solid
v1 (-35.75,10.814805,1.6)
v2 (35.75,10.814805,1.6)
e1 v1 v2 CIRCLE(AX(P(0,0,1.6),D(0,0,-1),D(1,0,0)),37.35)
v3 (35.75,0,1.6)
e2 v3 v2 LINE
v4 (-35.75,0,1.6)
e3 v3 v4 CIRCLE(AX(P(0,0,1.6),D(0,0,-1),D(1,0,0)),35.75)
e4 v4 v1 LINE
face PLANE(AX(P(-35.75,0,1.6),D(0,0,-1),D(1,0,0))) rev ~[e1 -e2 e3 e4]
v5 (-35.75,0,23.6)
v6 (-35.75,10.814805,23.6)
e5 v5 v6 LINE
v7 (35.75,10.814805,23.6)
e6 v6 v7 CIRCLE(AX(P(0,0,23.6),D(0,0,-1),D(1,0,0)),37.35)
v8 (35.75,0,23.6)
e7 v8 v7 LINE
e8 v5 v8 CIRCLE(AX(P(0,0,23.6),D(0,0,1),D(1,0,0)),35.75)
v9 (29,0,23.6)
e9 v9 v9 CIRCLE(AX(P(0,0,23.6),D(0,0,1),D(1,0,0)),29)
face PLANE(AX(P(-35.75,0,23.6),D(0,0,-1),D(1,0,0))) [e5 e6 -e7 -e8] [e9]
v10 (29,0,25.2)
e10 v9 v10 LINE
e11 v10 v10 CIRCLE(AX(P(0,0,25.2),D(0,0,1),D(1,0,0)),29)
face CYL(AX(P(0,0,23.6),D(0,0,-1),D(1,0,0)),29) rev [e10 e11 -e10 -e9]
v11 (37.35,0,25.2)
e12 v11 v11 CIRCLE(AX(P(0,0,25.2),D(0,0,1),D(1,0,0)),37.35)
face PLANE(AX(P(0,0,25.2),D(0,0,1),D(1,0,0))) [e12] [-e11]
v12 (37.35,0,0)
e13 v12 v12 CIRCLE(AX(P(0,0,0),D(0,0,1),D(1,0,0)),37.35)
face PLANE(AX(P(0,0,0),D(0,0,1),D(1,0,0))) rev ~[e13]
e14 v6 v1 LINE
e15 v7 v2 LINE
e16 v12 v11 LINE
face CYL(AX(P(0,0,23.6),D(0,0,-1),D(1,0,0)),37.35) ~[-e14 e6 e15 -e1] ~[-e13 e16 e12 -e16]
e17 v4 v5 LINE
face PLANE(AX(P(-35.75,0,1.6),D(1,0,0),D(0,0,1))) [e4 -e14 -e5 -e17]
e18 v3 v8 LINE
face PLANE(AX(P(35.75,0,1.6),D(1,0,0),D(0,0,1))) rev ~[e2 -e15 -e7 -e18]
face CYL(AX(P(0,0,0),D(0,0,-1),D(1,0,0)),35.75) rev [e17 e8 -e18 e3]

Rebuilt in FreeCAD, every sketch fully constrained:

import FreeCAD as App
import Part
import Sketcher
from FreeCAD import Vector


def faces_at(feature, points):
    """Names of the faces that lie closest to the given points."""
    faces = feature.Shape.Faces
    near = lambda p: min(range(len(faces)), key=lambda i: faces[i].distToShape(Part.Vertex(*p))[0])
    return sorted({f"Face{near(p) + 1}" for p in points})

doc = App.newDocument("Part")
body = doc.addObject("PartDesign::Body", "Body")

# Sketch on XY plane
sketch1 = doc.addObject("Sketcher::SketchObject", "Sketch")
body.addObject(sketch1)
sketch1.AttachmentSupport = (doc.XY_Plane, [""])
sketch1.MapMode = "FlatFace"
sketch1.addGeometry(Part.Circle(Vector(0, 0, 0), Vector(0, 0, 1), 37), False)
sketch1.addConstraint(Sketcher.Constraint("Coincident", 0, 3, -1, 1))
sketch1.addConstraint(Sketcher.Constraint("Diameter", 0, 74.7))
pad1 = doc.addObject("PartDesign::Pad", "Pad")
body.addObject(pad1)
pad1.Profile = sketch1
pad1.Length = 23.6
doc.recompute()

thickness = doc.addObject("PartDesign::Thickness", "Thickness")
body.addObject(thickness)
thickness.Base = (pad1, faces_at(pad1, [(0, 0, 23.6)]))
thickness.Value = 1.6
thickness.Reversed = True
thickness.Join = "Arc"

# Sketch on XY plane
sketch2 = doc.addObject("Sketcher::SketchObject", "Sketch001")
body.addObject(sketch2)
sketch2.AttachmentSupport = (doc.XY_Plane, [""])
sketch2.MapMode = "FlatFace"
sketch2.AttachmentOffset = App.Placement(Vector(0, 0, 23.6), App.Rotation())
sketch2.addGeometry(Part.Circle(Vector(0, 0, 0), Vector(0, 0, 1), 37), False)
sketch2.addGeometry(Part.Circle(Vector(0, 0, 0), Vector(0, 0, 1), 29), False)
sketch2.addConstraint(Sketcher.Constraint("Coincident", 0, 3, -1, 1))
sketch2.addConstraint(Sketcher.Constraint("Coincident", 1, 3, -1, 1))
sketch2.addConstraint(Sketcher.Constraint("Diameter", 1, 58.0))
sketch2.addConstraint(Sketcher.Constraint("Diameter", 0, 74.7))
pad2 = doc.addObject("PartDesign::Pad", "Pad001")
body.addObject(pad2)
pad2.Profile = sketch2
pad2.Length = 1.6

# Sketch on XZ plane
sketch3 = doc.addObject("Sketcher::SketchObject", "Sketch002")
body.addObject(sketch3)
sketch3.AttachmentSupport = (doc.XZ_Plane, [""])
sketch3.MapMode = "FlatFace"
sketch3.addGeometry(Part.LineSegment(Vector(-36, 24, 0), Vector(-36, 2, 0)), False)
sketch3.addGeometry(Part.LineSegment(Vector(-36, 2, 0), Vector(36, 2, 0)), False)
sketch3.addGeometry(Part.LineSegment(Vector(36, 2, 0), Vector(36, 24, 0)), False)
sketch3.addGeometry(Part.LineSegment(Vector(36, 24, 0), Vector(-36, 24, 0)), False)
sketch3.addConstraint(Sketcher.Constraint("Coincident", 0, 2, 1, 1))
sketch3.addConstraint(Sketcher.Constraint("Coincident", 1, 2, 2, 1))
sketch3.addConstraint(Sketcher.Constraint("Coincident", 2, 2, 3, 1))
sketch3.addConstraint(Sketcher.Constraint("Coincident", 3, 2, 0, 1))
sketch3.addConstraint(Sketcher.Constraint("Vertical", 0))
sketch3.addConstraint(Sketcher.Constraint("Horizontal", 1))
sketch3.addConstraint(Sketcher.Constraint("Vertical", 2))
sketch3.addConstraint(Sketcher.Constraint("Horizontal", 3))
sketch3.addConstraint(Sketcher.Constraint("DistanceY", 0, 2, 0, 1, 22.0))
sketch3.addConstraint(Sketcher.Constraint("DistanceX", 1, 1, 1, 2, 71.5))
sketch3.addConstraint(Sketcher.Constraint("DistanceY", -1, 1, 0, 2, 1.6))
sketch3.addConstraint(Sketcher.Constraint("DistanceX", 0, 2, -1, 1, 35.75))
pocket1 = doc.addObject("PartDesign::Pocket", "Pocket")
body.addObject(pocket1)
pocket1.Profile = sketch3
pocket1.Length = 50

doc.recompute()
